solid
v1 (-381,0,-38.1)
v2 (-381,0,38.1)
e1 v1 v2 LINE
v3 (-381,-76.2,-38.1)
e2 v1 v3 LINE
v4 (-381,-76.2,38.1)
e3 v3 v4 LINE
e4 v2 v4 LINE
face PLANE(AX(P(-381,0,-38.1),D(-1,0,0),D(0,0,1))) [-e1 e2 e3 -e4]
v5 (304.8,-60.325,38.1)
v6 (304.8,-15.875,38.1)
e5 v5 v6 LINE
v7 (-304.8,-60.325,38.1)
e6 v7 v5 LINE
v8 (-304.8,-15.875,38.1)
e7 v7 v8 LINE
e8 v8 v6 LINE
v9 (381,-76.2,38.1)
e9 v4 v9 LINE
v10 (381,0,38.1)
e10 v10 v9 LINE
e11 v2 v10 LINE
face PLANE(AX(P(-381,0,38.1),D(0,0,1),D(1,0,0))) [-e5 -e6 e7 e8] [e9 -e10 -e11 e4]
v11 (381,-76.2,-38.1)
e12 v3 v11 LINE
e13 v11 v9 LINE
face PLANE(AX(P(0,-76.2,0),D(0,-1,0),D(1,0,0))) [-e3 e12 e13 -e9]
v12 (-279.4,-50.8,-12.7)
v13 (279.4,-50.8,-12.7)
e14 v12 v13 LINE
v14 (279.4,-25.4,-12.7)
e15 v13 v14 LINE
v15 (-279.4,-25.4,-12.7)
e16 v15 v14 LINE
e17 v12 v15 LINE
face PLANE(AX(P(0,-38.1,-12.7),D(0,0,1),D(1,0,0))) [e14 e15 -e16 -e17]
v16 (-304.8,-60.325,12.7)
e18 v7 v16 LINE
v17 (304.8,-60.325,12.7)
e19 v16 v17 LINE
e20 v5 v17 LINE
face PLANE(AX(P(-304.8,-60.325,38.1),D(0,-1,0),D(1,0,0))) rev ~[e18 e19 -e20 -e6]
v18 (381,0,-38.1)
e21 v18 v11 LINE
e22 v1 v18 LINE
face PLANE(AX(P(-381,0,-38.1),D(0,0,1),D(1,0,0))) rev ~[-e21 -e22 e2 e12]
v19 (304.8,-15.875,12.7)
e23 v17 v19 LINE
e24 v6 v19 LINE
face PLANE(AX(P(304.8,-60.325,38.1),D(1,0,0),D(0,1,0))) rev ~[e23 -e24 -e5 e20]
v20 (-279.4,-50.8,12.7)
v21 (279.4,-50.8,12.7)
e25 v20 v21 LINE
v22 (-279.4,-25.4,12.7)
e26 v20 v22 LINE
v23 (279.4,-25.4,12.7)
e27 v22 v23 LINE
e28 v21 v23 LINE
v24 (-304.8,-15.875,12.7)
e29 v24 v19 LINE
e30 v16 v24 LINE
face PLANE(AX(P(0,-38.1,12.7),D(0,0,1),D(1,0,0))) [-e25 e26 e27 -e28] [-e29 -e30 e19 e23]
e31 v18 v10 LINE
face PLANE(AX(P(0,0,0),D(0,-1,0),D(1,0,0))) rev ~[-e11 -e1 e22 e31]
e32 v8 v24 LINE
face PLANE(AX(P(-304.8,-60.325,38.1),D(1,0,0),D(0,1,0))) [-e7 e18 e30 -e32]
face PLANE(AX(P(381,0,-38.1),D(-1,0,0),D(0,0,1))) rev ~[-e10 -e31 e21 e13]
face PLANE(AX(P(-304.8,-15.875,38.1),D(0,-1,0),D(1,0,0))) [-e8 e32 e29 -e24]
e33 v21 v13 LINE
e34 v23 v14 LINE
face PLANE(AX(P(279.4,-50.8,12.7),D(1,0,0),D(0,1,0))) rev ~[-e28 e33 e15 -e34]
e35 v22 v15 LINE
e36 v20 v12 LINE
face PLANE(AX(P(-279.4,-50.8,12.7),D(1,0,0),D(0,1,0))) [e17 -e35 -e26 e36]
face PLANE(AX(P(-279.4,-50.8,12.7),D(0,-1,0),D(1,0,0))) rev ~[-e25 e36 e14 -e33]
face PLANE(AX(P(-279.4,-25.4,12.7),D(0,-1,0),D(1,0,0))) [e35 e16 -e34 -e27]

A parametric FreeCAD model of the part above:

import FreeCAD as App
import Part
import Sketcher
from FreeCAD import Vector
Q = App.Units.Quantity

doc = App.newDocument("Part")
body = doc.addObject("PartDesign::Body", "Body")

# Sketch on XZ plane
sketch1 = doc.addObject("Sketcher::SketchObject", "Sketch")
body.addObject(sketch1)
sketch1.AttachmentSupport = (doc.XZ_Plane, [""])
sketch1.MapMode = "FlatFace"
sketch1.addGeometry(Part.LineSegment(Vector(-381, 38.1, 0), Vector(-381, -38.1, 0)), False)
sketch1.addGeometry(Part.LineSegment(Vector(-381, -38.1, 0), Vector(381, -38.1, 0)), False)
sketch1.addGeometry(Part.LineSegment(Vector(381, -38.1, 0), Vector(381, 38.1, 0)), False)
sketch1.addGeometry(Part.LineSegment(Vector(381, 38.1, 0), Vector(-381, 38.1, 0)), False)
sketch1.addConstraint(Sketcher.Constraint("Coincident", 0, 2, 1, 1))
sketch1.addConstraint(Sketcher.Constraint("Coincident", 1, 2, 2, 1))
sketch1.addConstraint(Sketcher.Constraint("Coincident", 2, 2, 3, 1))
sketch1.addConstraint(Sketcher.Constraint("Coincident", 3, 2, 0, 1))
sketch1.addConstraint(Sketcher.Constraint("Vertical", 0))
sketch1.addConstraint(Sketcher.Constraint("Horizontal", 1))
sketch1.addConstraint(Sketcher.Constraint("Vertical", 2))
sketch1.addConstraint(Sketcher.Constraint("Horizontal", 3))
sketch1.addConstraint(Sketcher.Constraint("Symmetric", 0, 2, 2, 2, -1, 1))
sketch1.addConstraint(Sketcher.Constraint("DistanceX", 1, 1, 1, 2, Q("30 in")))
sketch1.addConstraint(Sketcher.Constraint("DistanceY", 0, 2, 0, 1, Q("3 in")))
pad1 = doc.addObject("PartDesign::Pad", "Pad")
body.addObject(pad1)
pad1.Profile = sketch1
pad1.Length = Q("3 in")

# Sketch on XY plane
sketch2 = doc.addObject("Sketcher::SketchObject", "Sketch001")
body.addObject(sketch2)
sketch2.AttachmentSupport = (doc.XY_Plane, [""])
sketch2.MapMode = "FlatFace"
sketch2.AttachmentOffset = App.Placement(Vector(0, 0, 1.5 * 25.4), App.Rotation())
sketch2.addGeometry(Part.LineSegment(Vector(-304.8, -15.875, 0), Vector(-304.8, -60.325, 0)), False)
sketch2.addGeometry(Part.LineSegment(Vector(-304.8, -60.325, 0), Vector(304.8, -60.325, 0)), False)
sketch2.addGeometry(Part.LineSegment(Vector(304.8, -60.325, 0), Vector(304.8, -15.875, 0)), False)
sketch2.addGeometry(Part.LineSegment(Vector(304.8, -15.875, 0), Vector(-304.8, -15.875, 0)), False)
sketch2.addConstraint(Sketcher.Constraint("Coincident", 0, 2, 1, 1))
sketch2.addConstraint(Sketcher.Constraint("Coincident", 1, 2, 2, 1))
sketch2.addConstraint(Sketcher.Constraint("Coincident", 2, 2, 3, 1))
sketch2.addConstraint(Sketcher.Constraint("Coincident", 3, 2, 0, 1))
sketch2.addConstraint(Sketcher.Constraint("Vertical", 0))
sketch2.addConstraint(Sketcher.Constraint("Horizontal", 1))
sketch2.addConstraint(Sketcher.Constraint("Vertical", 2))
sketch2.addConstraint(Sketcher.Constraint("Horizontal", 3))
sketch2.addConstraint(Sketcher.Constraint("DistanceX", 1, 1, 1, 2, Q("24 in")))
sketch2.addConstraint(Sketcher.Constraint("DistanceX", 0, 2, -1, 1, Q("12 in")))
sketch2.addConstraint(Sketcher.Constraint("DistanceY", 0, 2, 0, 1, Q("1.75 in")))
sketch2.addConstraint(Sketcher.Constraint("DistanceY", 0, 2, -1, 1, Q("2.375 in")))
pocket1 = doc.addObject("PartDesign::Pocket", "Pocket")
body.addObject(pocket1)
pocket1.Profile = sketch2
pocket1.Length = Q("1 in")

# Sketch on XY plane
sketch3 = doc.addObject("Sketcher::SketchObject", "Sketch002")
body.addObject(sketch3)
sketch3.AttachmentSupport = (doc.XY_Plane, [""])
sketch3.MapMode = "FlatFace"
sketch3.AttachmentOffset = App.Placement(Vector(0, 0, 0.5 * 25.4), App.Rotation())
sketch3.addGeometry(Part.LineSegment(Vector(-279.4, -25.4, 0), Vector(-279.4, -50.8, 0)), False)
sketch3.addGeometry(Part.LineSegment(Vector(-279.4, -50.8, 0), Vector(279.4, -50.8, 0)), False)
sketch3.addGeometry(Part.LineSegment(Vector(279.4, -50.8, 0), Vector(279.4, -25.4, 0)), False)
sketch3.addGeometry(Part.LineSegment(Vector(279.4, -25.4, 0), Vector(-279.4, -25.4, 0)), False)
sketch3.addConstraint(Sketcher.Constraint("Coincident", 0, 2, 1, 1))
sketch3.addConstraint(Sketcher.Constraint("Coincident", 1, 2, 2, 1))
sketch3.addConstraint(Sketcher.Constraint("Coincident", 2, 2, 3, 1))
sketch3.addConstraint(Sketcher.Constraint("Coincident", 3, 2, 0, 1))
sketch3.addConstraint(Sketcher.Constraint("Vertical", 0))
sketch3.addConstraint(Sketcher.Constraint("Horizontal", 1))
sketch3.addConstraint(Sketcher.Constraint("Vertical", 2))
sketch3.addConstraint(Sketcher.Constraint("Horizontal", 3))
sketch3.addConstraint(Sketcher.Constraint("DistanceX", 1, 1, 1, 2, Q("22 in")))
sketch3.addConstraint(Sketcher.Constraint("DistanceY", 0, 2, 0, 1, Q("1 in")))
sketch3.addConstraint(Sketcher.Constraint("DistanceX", 0, 2, -1, 1, Q("11 in")))
sketch3.addConstraint(Sketcher.Constraint("DistanceY", 0, 2, -1, 1, Q("2 in")))
pocket2 = doc.addObject("PartDesign::Pocket", "Pocket001")
body.addObject(pocket2)
pocket2.Profile = sketch3
pocket2.Length = Q("1 in")

doc.recompute()
